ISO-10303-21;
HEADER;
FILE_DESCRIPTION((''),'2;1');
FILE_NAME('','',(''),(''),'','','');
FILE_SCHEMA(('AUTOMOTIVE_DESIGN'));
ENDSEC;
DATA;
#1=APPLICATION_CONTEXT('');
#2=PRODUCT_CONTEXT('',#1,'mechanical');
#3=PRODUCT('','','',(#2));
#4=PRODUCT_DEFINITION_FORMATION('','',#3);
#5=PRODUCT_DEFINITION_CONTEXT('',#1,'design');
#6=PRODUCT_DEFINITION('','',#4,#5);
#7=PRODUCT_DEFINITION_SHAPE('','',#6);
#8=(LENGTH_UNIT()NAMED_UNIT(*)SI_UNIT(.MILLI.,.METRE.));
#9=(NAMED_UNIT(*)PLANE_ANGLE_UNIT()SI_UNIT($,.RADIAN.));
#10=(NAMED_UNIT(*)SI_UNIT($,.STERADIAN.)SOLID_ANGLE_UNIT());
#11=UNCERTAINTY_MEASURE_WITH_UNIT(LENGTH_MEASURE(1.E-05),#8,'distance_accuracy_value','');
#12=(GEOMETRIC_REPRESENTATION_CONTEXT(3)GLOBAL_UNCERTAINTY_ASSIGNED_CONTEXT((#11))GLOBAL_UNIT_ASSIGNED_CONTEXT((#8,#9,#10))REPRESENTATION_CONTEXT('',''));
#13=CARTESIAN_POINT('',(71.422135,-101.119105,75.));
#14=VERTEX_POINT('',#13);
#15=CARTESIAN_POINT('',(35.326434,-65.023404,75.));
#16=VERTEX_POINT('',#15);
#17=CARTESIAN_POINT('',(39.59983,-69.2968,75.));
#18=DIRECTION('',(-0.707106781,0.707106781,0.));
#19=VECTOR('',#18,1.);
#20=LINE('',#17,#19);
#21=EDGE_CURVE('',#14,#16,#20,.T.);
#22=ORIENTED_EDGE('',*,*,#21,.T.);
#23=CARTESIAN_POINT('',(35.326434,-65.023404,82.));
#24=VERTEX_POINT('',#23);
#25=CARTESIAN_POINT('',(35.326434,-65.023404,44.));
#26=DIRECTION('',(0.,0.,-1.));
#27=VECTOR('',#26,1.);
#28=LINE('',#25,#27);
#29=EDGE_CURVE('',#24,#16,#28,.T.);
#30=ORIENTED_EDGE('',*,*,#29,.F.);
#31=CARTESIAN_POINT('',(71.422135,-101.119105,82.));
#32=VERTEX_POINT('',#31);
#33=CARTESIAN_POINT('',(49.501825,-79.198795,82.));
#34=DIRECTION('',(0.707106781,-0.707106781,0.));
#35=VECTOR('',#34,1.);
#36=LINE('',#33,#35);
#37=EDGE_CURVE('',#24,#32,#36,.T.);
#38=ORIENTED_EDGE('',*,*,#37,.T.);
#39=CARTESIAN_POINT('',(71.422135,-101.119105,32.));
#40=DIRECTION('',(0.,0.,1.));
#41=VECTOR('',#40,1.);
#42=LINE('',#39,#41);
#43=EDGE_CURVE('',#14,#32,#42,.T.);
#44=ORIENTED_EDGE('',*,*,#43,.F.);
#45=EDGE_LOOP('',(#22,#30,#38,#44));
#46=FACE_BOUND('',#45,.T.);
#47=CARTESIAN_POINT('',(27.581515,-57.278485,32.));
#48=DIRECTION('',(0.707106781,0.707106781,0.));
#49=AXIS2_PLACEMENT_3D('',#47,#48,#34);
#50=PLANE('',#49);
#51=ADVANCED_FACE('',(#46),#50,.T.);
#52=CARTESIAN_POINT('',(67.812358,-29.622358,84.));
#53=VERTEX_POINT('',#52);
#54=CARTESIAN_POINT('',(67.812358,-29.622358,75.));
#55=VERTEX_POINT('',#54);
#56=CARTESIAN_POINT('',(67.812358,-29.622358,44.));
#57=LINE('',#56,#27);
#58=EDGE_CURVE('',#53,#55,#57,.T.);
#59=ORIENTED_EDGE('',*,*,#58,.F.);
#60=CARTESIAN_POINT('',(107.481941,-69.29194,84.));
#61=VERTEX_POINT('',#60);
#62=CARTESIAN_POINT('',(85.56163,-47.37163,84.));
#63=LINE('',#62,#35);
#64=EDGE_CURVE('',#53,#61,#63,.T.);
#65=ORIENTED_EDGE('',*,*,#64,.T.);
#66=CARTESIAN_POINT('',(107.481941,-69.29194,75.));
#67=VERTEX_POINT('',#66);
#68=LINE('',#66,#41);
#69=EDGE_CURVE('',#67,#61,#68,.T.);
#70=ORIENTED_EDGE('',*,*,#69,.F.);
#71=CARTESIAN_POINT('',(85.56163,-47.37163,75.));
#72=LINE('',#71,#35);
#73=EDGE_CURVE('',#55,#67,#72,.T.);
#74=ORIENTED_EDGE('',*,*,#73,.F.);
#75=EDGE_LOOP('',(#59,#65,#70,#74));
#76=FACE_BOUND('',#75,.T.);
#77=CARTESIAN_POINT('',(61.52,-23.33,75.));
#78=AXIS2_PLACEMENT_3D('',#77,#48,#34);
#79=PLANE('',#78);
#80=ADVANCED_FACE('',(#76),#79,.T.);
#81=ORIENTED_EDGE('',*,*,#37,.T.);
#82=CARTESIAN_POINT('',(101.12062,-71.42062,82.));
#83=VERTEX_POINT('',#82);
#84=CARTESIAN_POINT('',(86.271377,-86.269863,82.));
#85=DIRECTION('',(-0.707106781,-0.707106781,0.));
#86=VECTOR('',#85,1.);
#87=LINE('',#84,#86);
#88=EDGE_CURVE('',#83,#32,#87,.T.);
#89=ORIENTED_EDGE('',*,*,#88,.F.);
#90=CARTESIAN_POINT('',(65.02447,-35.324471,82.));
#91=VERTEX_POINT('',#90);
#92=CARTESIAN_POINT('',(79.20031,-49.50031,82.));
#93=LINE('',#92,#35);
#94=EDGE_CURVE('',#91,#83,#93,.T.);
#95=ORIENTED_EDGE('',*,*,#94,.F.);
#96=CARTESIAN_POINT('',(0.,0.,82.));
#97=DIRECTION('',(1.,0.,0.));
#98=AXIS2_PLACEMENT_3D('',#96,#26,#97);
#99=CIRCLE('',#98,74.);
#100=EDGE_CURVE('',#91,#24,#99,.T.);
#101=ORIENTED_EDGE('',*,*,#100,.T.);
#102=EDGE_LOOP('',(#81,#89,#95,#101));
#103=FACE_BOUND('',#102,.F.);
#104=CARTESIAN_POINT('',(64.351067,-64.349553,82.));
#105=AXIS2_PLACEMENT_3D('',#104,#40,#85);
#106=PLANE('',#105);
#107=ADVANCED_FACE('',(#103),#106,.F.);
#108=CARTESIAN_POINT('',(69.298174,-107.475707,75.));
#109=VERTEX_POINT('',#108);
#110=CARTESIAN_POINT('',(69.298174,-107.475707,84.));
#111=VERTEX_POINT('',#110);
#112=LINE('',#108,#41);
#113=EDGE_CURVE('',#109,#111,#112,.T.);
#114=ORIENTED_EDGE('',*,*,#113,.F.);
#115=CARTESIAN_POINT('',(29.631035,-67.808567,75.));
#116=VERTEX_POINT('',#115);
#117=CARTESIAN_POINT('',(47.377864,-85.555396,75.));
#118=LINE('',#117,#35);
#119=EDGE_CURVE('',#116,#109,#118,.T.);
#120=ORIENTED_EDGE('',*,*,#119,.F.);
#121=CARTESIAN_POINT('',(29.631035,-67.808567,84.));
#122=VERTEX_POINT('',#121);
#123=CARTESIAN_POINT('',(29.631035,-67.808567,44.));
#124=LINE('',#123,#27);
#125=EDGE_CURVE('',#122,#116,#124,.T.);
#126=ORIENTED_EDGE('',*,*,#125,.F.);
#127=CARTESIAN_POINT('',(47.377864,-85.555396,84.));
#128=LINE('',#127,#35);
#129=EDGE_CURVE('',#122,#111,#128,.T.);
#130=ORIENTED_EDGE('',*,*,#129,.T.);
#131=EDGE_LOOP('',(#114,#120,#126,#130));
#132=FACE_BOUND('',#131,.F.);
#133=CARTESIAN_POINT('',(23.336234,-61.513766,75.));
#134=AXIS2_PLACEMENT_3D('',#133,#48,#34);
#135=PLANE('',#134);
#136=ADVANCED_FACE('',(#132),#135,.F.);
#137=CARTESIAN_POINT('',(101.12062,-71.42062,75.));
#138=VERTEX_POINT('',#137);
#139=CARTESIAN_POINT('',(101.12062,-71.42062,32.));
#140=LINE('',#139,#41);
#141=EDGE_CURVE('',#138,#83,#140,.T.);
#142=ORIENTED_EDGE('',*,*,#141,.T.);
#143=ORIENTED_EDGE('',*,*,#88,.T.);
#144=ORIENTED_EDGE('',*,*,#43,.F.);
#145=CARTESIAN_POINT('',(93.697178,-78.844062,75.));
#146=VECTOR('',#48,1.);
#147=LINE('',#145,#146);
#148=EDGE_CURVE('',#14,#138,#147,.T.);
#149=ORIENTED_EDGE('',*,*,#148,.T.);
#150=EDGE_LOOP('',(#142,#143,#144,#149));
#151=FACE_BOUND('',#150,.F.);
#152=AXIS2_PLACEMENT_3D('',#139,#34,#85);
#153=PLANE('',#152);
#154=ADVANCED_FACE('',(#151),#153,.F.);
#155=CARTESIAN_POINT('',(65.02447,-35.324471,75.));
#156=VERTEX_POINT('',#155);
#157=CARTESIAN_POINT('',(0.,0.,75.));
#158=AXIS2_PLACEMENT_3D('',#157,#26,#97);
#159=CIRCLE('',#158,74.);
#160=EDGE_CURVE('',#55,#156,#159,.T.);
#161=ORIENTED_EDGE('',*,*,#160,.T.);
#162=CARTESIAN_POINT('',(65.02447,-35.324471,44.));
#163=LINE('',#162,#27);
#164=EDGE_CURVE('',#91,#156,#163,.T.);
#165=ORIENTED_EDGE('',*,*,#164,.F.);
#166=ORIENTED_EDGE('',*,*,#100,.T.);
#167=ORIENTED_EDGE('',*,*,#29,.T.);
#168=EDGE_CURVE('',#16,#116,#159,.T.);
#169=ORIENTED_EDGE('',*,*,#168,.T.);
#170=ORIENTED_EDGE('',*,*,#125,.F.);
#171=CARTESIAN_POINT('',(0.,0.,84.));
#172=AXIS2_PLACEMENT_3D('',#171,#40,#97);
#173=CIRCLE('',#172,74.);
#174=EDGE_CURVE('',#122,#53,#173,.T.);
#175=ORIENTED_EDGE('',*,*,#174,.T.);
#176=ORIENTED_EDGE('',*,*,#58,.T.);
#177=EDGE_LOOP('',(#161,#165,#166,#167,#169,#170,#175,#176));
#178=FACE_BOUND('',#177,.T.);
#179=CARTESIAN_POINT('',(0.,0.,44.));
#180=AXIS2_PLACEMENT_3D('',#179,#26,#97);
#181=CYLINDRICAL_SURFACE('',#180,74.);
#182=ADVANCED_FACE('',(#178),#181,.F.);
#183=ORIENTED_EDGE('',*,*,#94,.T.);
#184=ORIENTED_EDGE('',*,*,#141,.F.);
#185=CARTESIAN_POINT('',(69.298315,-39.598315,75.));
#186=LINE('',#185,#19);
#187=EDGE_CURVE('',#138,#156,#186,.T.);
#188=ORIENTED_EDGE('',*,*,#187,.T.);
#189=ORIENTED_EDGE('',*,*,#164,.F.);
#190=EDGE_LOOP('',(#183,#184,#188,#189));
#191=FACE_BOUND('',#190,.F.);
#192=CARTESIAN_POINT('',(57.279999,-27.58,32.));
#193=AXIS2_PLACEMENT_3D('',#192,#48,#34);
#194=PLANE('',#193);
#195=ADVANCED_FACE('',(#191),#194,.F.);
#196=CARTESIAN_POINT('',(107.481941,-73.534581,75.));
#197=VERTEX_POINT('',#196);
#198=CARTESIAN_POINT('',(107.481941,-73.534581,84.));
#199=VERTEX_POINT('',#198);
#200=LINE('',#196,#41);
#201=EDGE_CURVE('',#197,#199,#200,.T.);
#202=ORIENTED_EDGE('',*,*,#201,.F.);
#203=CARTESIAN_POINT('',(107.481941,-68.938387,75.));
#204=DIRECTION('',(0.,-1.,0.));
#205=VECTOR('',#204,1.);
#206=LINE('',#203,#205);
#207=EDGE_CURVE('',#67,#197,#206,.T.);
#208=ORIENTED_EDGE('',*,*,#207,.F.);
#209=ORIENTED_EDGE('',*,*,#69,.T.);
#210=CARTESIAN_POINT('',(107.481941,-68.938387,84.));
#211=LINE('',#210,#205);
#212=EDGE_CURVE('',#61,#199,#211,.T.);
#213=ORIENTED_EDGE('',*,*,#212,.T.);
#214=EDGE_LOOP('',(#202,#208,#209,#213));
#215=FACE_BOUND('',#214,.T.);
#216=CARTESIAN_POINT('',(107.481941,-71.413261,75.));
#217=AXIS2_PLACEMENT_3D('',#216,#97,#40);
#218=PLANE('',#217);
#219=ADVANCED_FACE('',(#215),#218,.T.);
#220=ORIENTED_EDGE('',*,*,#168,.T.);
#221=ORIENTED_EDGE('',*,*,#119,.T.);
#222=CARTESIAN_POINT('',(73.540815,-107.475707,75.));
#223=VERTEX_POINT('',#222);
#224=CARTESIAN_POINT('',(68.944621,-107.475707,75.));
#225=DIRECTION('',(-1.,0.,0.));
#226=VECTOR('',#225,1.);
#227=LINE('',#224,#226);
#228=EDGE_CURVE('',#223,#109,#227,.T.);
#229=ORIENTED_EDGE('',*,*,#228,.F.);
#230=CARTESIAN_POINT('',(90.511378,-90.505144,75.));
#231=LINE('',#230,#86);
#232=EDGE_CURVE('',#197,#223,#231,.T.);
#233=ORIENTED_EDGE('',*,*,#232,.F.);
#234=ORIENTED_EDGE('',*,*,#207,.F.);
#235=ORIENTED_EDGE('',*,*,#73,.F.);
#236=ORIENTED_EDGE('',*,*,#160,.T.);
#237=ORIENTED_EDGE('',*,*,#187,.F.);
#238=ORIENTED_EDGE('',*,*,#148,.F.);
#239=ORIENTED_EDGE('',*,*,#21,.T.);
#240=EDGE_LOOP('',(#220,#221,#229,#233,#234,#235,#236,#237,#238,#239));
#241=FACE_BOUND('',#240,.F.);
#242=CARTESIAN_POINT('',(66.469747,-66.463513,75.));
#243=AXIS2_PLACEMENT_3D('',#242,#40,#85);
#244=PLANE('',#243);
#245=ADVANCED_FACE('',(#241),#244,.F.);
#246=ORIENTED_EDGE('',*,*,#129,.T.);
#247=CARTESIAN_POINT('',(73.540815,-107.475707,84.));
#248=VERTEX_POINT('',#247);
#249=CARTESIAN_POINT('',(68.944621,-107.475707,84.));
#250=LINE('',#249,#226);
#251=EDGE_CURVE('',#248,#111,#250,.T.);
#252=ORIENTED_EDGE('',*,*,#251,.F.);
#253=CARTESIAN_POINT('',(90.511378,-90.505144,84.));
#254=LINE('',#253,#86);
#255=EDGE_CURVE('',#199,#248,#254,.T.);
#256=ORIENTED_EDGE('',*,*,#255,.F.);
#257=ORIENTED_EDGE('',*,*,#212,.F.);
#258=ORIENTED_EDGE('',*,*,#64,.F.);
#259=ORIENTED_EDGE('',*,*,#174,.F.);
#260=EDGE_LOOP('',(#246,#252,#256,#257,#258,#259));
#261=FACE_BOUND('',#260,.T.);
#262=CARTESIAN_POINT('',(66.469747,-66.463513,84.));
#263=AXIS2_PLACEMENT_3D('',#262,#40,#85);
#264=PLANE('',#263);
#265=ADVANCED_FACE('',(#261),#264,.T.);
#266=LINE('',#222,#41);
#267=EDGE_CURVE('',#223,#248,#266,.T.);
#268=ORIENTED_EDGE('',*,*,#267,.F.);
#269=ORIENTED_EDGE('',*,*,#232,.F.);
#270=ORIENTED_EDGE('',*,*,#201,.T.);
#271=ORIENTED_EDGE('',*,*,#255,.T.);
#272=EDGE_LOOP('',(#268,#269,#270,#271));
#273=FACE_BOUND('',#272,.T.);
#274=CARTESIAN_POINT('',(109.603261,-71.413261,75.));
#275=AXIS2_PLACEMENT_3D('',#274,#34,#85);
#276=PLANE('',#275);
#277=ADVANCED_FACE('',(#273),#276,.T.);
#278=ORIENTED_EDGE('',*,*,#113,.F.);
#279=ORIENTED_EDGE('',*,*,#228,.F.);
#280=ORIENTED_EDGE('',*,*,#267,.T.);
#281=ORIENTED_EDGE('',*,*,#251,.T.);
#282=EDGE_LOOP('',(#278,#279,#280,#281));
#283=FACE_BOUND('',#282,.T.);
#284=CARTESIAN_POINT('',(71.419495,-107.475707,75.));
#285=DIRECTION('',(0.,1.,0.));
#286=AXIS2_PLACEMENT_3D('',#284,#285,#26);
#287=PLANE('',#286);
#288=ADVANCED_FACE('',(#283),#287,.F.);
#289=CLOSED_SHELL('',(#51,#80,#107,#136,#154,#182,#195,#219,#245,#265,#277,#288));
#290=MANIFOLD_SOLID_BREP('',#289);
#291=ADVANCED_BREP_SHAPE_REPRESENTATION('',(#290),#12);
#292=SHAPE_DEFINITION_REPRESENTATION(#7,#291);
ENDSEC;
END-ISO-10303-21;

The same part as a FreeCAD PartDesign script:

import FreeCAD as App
import Part
import Sketcher
Q = App.Units.Quantity


def edges_at(feature, points):
    """Names of the edges that pass closest to the given points."""
    edges = feature.Shape.Edges
    near = lambda p: min(range(len(edges)), key=lambda i: edges[i].distToShape(Part.Vertex(*p))[0])
    return sorted({f"Edge{near(p) + 1}" for p in points})

doc = App.newDocument("Part")
body = doc.addObject("PartDesign::Body", "Body")

sketch1 = body.newObject("Sketcher::SketchObject", "Sketch")
sketch1.AttachmentSupport = (doc.getObject("XY_Plane"), [""])
sketch1.MapMode = "FlatFace"
sketch1.AttachmentOffset = App.Placement(App.Vector(0, 0, 44), App.Rotation())
sketch1.addGeometry(Part.Circle(App.Vector(0, 0, 0), App.Vector(0, 0, 1), 74), False)
sketch1.addConstraint(Sketcher.Constraint("Coincident", 0, 3, -1, 1))
sketch1.addConstraint(Sketcher.Constraint("Diameter", 0, Q("148 mm")))
pad1 = body.newObject("PartDesign::Pad", "Pad")
pad1.Profile = sketch1
pad1.Length = 40
body2 = doc.addObject("PartDesign::Body", "Body001")

sketch2 = body2.newObject("Sketcher::SketchObject", "Sketch001")
sketch2.AttachmentSupport = (doc.getObject("XY_Plane001"), [""])
sketch2.MapMode = "FlatFace"
sketch2.AttachmentOffset = App.Placement(App.Vector(0, 0, 31), App.Rotation())
sketch2.addGeometry(Part.LineSegment(App.Vector(-21.001071, 122.005081, 0), App.Vector(-21.001071, 60.005081, 0)), False)
sketch2.addGeometry(Part.LineSegment(App.Vector(-21.001071, 60.005081, 0), App.Vector(20.998929, 60.005081, 0)), False)
sketch2.addGeometry(Part.LineSegment(App.Vector(20.998929, 60.005081, 0), App.Vector(20.998929, 122.005081, 0)), False)
sketch2.addGeometry(Part.LineSegment(App.Vector(20.998929, 122.005081, 0), App.Vector(-21.001071, 122.005081, 0)), False)
sketch2.addConstraint(Sketcher.Constraint("Coincident", 0, 2, 1, 1))
sketch2.addConstraint(Sketcher.Constraint("Coincident", 1, 2, 2, 1))
sketch2.addConstraint(Sketcher.Constraint("Coincident", 2, 2, 3, 1))
sketch2.addConstraint(Sketcher.Constraint("Coincident", 3, 2, 0, 1))
sketch2.addConstraint(Sketcher.Constraint("Vertical", 0))
sketch2.addConstraint(Sketcher.Constraint("Horizontal", 1))
sketch2.addConstraint(Sketcher.Constraint("Vertical", 2))
sketch2.addConstraint(Sketcher.Constraint("Horizontal", 3))
sketch2.addConstraint(Sketcher.Constraint("DistanceX", 1, 1, 1, 2, Q("42 mm")))
sketch2.addConstraint(Sketcher.Constraint("DistanceY", 0, 2, 0, 1, Q("62 mm")))
sketch2.addConstraint(Sketcher.Constraint("DistanceX", 0, 2, -1, 1, Q("21.001071 mm")))
sketch2.addConstraint(Sketcher.Constraint("DistanceY", -1, 1, 0, 2, Q("60.005081 mm")))
pad2 = body2.newObject("PartDesign::Pad", "Pad001")
pad2.Profile = sketch2
pad2.Length = 50
body3 = doc.addObject("PartDesign::Body", "Body002")
doc.recompute()

body2.Placement = App.Placement(App.Vector(0, 0, 1), App.Rotation(App.Vector(0, 0, 1), 225))
boolean = body3.newObject("PartDesign::Boolean", "Boolean")
boolean.Type = "Fuse"
boolean.addObjects([body2])
body4 = doc.addObject("PartDesign::Body", "Body003")

sketch3 = body4.newObject("Sketcher::SketchObject", "Sketch002")
sketch3.AttachmentSupport = (doc.getObject("XY_Plane003"), [""])
sketch3.MapMode = "FlatFace"
sketch3.AttachmentOffset = App.Placement(App.Vector(0, 0, 75), App.Rotation())
sketch3.addGeometry(Part.LineSegment(App.Vector(-27.004408, 127.99801, 0), App.Vector(-27.004408, 59.99801, 0)), False)
sketch3.addGeometry(Part.LineSegment(App.Vector(-27.004408, 59.99801, 0), App.Vector(26.995592, 59.99801, 0)), False)
sketch3.addGeometry(Part.LineSegment(App.Vector(26.995592, 59.99801, 0), App.Vector(26.995592, 127.99801, 0)), False)
sketch3.addGeometry(Part.LineSegment(App.Vector(26.995592, 127.99801, 0), App.Vector(-27.004408, 127.99801, 0)), False)
sketch3.addConstraint(Sketcher.Constraint("Coincident", 0, 2, 1, 1))
sketch3.addConstraint(Sketcher.Constraint("Coincident", 1, 2, 2, 1))
sketch3.addConstraint(Sketcher.Constraint("Coincident", 2, 2, 3, 1))
sketch3.addConstraint(Sketcher.Constraint("Coincident", 3, 2, 0, 1))
sketch3.addConstraint(Sketcher.Constraint("Vertical", 0))
sketch3.addConstraint(Sketcher.Constraint("Horizontal", 1))
sketch3.addConstraint(Sketcher.Constraint("Vertical", 2))
sketch3.addConstraint(Sketcher.Constraint("Horizontal", 3))
sketch3.addConstraint(Sketcher.Constraint("DistanceX", 1, 1, 1, 2, Q("54 mm")))
sketch3.addConstraint(Sketcher.Constraint("DistanceY", 0, 2, 0, 1, Q("68 mm")))
sketch3.addConstraint(Sketcher.Constraint("DistanceX", 0, 2, -1, 1, Q("27.004408 mm")))
sketch3.addConstraint(Sketcher.Constraint("DistanceY", -1, 1, 0, 2, Q("59.99801 mm")))
pad3 = body4.newObject("PartDesign::Pad", "Pad002")
pad3.Profile = sketch3
pad3.Length = 9
body5 = doc.addObject("PartDesign::Body", "Body004")
doc.recompute()

body4.Placement = App.Placement(App.Vector(0, 0, 0), App.Rotation(App.Vector(0, 0, 1), 225))
boolean2 = body5.newObject("PartDesign::Boolean", "Boolean001")
boolean2.Type = "Fuse"
boolean2.addObjects([body4])
doc.recompute()

boolean3 = body5.newObject("PartDesign::Boolean", "Boolean002")
boolean3.Type = "Cut"
boolean3.addObjects([body3])
doc.recompute()

boolean4 = body5.newObject("PartDesign::Boolean", "Boolean003")
boolean4.Type = "Cut"
boolean4.addObjects([body])
doc.recompute()

chamfer = body5.newObject("PartDesign::Chamfer", "Chamfer")
chamfer.Base = (boolean4, edges_at(boolean4, [(109.603, -71.413, 79.5), (71.419, -109.597, 79.5)]))
chamfer.Size = 3

doc.recompute()
